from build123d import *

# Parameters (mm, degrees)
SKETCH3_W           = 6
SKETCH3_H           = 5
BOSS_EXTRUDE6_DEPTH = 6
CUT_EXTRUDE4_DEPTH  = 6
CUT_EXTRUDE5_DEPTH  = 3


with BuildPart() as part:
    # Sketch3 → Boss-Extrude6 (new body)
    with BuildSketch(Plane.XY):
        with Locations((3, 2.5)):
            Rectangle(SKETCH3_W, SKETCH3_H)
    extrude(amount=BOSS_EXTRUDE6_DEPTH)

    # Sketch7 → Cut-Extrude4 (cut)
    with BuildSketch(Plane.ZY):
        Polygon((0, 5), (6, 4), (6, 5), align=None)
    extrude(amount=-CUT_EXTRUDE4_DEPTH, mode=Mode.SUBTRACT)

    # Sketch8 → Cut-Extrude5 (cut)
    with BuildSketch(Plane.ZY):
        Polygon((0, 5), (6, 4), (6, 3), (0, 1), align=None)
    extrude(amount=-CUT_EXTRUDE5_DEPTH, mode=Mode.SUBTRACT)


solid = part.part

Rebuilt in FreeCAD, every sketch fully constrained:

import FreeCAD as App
import Part
import Sketcher
from FreeCAD import Vector
Q = App.Units.Quantity


def add_polygon(sketch, points):
    """Adds a closed chain of lines whose ends are joined by coincident constraints."""
    first, n = sketch.GeometryCount, len(points)
    for a, b in zip(points, points[1:] + points[:1]):
        sketch.addGeometry(Part.LineSegment(App.Vector(*a, 0), App.Vector(*b, 0)), False)
    for i in range(n):
        sketch.addConstraint(Sketcher.Constraint("Coincident", first + i, 2, first + (i + 1) % n, 1))

doc = App.newDocument("Part")
params = doc.addObject("Spreadsheet::Sheet", "Params")
for row, (alias, value) in enumerate([
    ("sketch1_width", "6 mm"),
    ("sketch1_height", "5 mm"),
    ("pad1_length", "6 mm"),
    ("sketch2_width", "1 mm"),
    ("sketch2_height", "6 mm"),
    ("pocket1_length", "6 mm"),
    ("sketch3_width", "4 mm"),
    ("sketch3_width2", "1 mm"),
    ("pocket2_length", "3 mm"),
], start=1):
    params.set(f"A{row}", alias)
    params.set(f"B{row}", "=" + value)
    params.setAlias(f"B{row}", alias)

body = doc.addObject("PartDesign::Body", "Body")

# Sketch on XY plane
sketch1 = body.newObject("Sketcher::SketchObject", "Sketch")
sketch1.AttachmentSupport = (doc.getObject("XY_Plane"), [""])
sketch1.MapMode = "FlatFace"
add_polygon(sketch1, [(0, 5), (0, 0), (6, 0), (6, 5)])  # lines 0-3
sketch1.addConstraint(Sketcher.Constraint("Vertical", 0))
sketch1.addConstraint(Sketcher.Constraint("Horizontal", 1))
sketch1.addConstraint(Sketcher.Constraint("Vertical", 2))
sketch1.addConstraint(Sketcher.Constraint("Horizontal", 3))
sketch1.addConstraint(Sketcher.Constraint("Coincident", 0, 2, -1, 1))
sketch1.addConstraint(Sketcher.Constraint("DistanceX", 1, 1, 1, 2, Q("6 mm")))
sketch1.addConstraint(Sketcher.Constraint("DistanceY", 0, 2, 0, 1, Q("5 mm")))
sketch1.setExpression("Constraints[9]", "Params.sketch1_width")
sketch1.setExpression("Constraints[10]", "Params.sketch1_height")
pad1 = body.newObject("PartDesign::Pad", "Pad")
pad1.Profile = sketch1
pad1.setExpression("Length", "Params.pad1_length")

# Sketch on YZ plane
sketch2 = body.newObject("Sketcher::SketchObject", "Sketch001")
sketch2.AttachmentSupport = (doc.getObject("YZ_Plane"), [""])
sketch2.MapMode = "FlatFace"
add_polygon(sketch2, [(5, 0), (4, 6), (5, 6)])  # lines 0-2
sketch2.addConstraint(Sketcher.Constraint("Horizontal", 1))
sketch2.addConstraint(Sketcher.Constraint("Vertical", 2))
sketch2.addConstraint(Sketcher.Constraint("PointOnObject", 2, 2, -1))
sketch2.addConstraint(Sketcher.Constraint("DistanceX", 1, 1, 1, 2, Q("1 mm")))
sketch2.addConstraint(Sketcher.Constraint("DistanceY", 2, 2, 2, 1, Q("6 mm")))
sketch2.addConstraint(Sketcher.Constraint("DistanceX", -1, 1, 0, 2, Q("4 mm")))
sketch2.setExpression("Constraints[6]", "Params.sketch2_width")
sketch2.setExpression("Constraints[7]", "Params.sketch2_height")
pocket1 = body.newObject("PartDesign::Pocket", "Pocket")
pocket1.Profile = sketch2
pocket1.setExpression("Length", "Params.pocket1_length")
pocket1.Reversed = True

# Sketch on YZ plane
sketch3 = body.newObject("Sketcher::SketchObject", "Sketch002")
sketch3.AttachmentSupport = (doc.getObject("YZ_Plane"), [""])
sketch3.MapMode = "FlatFace"
add_polygon(sketch3, [(4, 6), (5, 0), (1, 0), (3, 6)])  # lines 0-3
sketch3.addConstraint(Sketcher.Constraint("Horizontal", 1))
sketch3.addConstraint(Sketcher.Constraint("Horizontal", 3))
sketch3.addConstraint(Sketcher.Constraint("PointOnObject", 0, 2, -1))
sketch3.addConstraint(Sketcher.Constraint("DistanceX", 1, 2, 1, 1, Q("4 mm")))
sketch3.addConstraint(Sketcher.Constraint("DistanceX", 3, 1, 3, 2, Q("1 mm")))
sketch3.addConstraint(Sketcher.Constraint("DistanceX", -1, 1, 0, 2, Q("5 mm")))
sketch3.addConstraint(Sketcher.Constraint("DistanceX", -1, 1, 2, 2, Q("3 mm")))
sketch3.addConstraint(Sketcher.Constraint("DistanceY", -1, 1, 2, 2, Q("6 mm")))
sketch3.setExpression("Constraints[7]", "Params.sketch3_width")
sketch3.setExpression("Constraints[8]", "Params.sketch3_width2")
pocket2 = body.newObject("PartDesign::Pocket", "Pocket001")
pocket2.Profile = sketch3
pocket2.setExpression("Length", "Params.pocket2_length")
pocket2.Reversed = True

doc.recompute()
